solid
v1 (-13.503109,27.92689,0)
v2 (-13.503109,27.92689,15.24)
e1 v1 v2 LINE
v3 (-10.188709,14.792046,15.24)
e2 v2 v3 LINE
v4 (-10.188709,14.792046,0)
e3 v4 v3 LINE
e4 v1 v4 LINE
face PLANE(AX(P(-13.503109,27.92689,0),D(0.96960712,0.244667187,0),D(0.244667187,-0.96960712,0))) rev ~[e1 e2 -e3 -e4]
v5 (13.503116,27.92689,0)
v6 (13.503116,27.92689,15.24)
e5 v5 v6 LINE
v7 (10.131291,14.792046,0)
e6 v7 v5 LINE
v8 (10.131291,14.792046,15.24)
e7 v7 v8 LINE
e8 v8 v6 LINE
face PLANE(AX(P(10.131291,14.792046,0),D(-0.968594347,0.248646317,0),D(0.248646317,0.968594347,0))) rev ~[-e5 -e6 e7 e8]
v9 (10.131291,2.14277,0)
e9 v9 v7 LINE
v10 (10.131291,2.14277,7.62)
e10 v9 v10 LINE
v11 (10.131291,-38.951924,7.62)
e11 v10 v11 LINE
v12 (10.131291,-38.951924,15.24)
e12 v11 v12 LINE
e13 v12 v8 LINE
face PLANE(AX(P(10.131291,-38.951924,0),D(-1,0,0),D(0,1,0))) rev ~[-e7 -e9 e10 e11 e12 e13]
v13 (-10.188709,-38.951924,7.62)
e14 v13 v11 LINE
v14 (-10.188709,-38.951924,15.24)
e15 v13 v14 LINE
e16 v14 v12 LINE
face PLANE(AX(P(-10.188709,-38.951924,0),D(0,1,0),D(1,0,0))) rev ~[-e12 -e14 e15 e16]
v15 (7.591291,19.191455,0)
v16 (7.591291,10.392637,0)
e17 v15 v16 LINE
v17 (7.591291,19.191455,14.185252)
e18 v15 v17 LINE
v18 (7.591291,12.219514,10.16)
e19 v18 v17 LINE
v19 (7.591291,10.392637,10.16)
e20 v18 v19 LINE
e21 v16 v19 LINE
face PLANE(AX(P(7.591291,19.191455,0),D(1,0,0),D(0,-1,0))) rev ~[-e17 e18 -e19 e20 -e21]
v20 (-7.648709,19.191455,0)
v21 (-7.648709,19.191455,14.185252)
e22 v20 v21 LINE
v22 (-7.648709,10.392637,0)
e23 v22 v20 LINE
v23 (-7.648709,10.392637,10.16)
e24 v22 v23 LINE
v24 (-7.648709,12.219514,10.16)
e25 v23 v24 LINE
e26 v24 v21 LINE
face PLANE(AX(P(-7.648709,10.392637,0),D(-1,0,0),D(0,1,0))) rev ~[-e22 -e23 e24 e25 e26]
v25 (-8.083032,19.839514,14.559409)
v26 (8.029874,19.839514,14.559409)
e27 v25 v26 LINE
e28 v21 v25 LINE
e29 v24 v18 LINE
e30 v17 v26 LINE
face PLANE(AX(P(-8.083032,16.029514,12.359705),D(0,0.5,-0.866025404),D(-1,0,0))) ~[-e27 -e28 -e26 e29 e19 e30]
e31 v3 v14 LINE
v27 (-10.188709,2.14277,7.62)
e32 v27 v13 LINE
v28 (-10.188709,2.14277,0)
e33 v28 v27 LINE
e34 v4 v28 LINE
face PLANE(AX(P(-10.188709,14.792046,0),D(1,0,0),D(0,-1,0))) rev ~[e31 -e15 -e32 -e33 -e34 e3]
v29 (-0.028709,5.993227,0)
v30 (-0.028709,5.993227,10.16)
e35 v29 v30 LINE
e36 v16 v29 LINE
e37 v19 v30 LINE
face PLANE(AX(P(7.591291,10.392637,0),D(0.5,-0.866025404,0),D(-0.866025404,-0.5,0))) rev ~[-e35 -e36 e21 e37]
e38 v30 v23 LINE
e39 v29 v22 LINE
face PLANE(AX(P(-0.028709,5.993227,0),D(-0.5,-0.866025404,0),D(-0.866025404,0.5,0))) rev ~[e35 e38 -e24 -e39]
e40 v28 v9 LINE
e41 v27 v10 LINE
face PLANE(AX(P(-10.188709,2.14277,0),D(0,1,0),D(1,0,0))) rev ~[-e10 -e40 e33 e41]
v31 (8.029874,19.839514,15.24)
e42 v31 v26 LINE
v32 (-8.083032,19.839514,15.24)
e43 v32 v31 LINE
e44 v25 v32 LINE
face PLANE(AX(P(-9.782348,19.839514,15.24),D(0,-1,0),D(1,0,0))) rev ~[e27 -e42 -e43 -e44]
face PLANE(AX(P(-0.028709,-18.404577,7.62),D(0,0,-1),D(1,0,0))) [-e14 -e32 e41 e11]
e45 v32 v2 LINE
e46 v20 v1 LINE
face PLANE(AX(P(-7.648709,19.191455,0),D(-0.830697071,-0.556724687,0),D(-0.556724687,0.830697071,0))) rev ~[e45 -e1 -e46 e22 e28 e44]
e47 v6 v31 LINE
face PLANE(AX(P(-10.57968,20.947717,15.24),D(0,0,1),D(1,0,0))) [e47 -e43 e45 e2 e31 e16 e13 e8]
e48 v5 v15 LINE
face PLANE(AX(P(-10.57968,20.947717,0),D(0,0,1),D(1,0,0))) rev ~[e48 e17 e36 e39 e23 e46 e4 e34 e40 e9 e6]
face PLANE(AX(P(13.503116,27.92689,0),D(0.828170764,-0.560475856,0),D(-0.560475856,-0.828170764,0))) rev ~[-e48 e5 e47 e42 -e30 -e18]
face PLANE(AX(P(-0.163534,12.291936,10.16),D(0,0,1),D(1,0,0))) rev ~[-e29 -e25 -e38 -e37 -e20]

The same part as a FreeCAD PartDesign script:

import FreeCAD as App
import Part
import Sketcher

V = App.Vector
Q = App.Units.Quantity


def edges_at(feature, points):
    """Names of the edges that pass closest to the given points."""
    edges = feature.Shape.Edges
    near = lambda p: min(range(len(edges)), key=lambda i: edges[i].distToShape(Part.Vertex(*p))[0])
    return sorted({f"Edge{near(p) + 1}" for p in points})


def add_polygon(sketch, points):
    """Adds a closed chain of lines whose ends are joined by coincident constraints."""
    first, n = sketch.GeometryCount, len(points)
    for a, b in zip(points, points[1:] + points[:1]):
        sketch.addGeometry(Part.LineSegment(App.Vector(*a, 0), App.Vector(*b, 0)), False)
    for i in range(n):
        sketch.addConstraint(Sketcher.Constraint("Coincident", first + i, 2, first + (i + 1) % n, 1))

doc = App.newDocument("Part")
body = doc.addObject("PartDesign::Body", "Body")

# Sketch on XY plane
sketch1 = doc.addObject("Sketcher::SketchObject", "Sketch")
body.addObject(sketch1)
sketch1.AttachmentSupport = (doc.XY_Plane, [""])
sketch1.MapMode = "FlatFace"
add_polygon(sketch1, [(-14, 28), (-10, 15), (-10, -39), (10, -39), (10, 15), (14, 28), (8, 19), (8, 10), (0, 6), (-8, 10), (-8, 19)])  # lines 0-10
sketch1.addConstraint([
    Sketcher.Constraint("Vertical", 1),
    Sketcher.Constraint("Horizontal", 2),
    Sketcher.Constraint("Vertical", 3),
    Sketcher.Constraint("Vertical", 6),
    Sketcher.Constraint("Vertical", 9),
    Sketcher.Constraint("Symmetric", 4, 2, 10, 2, -2),
    Sketcher.Constraint("Horizontal", 0, 2, 3, 2),
    Sketcher.Constraint("Horizontal", 6, 2, 8, 2),
    Sketcher.Constraint("Horizontal", 5, 2, 9, 2),
    Sketcher.Constraint("Equal", 7, 8),
    Sketcher.Constraint("DistanceX", 2, 1, 2, 2, Q("0.8 in")),
    Sketcher.Constraint("Angle", 7, Q("-150 deg")),
    Sketcher.Constraint("DistanceX", 5, 2, 3, 2, Q("0.1 in")),
    Sketcher.Constraint("DistanceX", 7, 2, 6, 2, Q("0.3 in")),
    Sketcher.Constraint("DistanceY", 1, 2, 1, 1, 53.743969),
    Sketcher.Constraint("DistanceY", 6, 2, 6, 1, 8.798818),
    Sketcher.Constraint("DistanceX", 10, 2, 9, 2, 5.8544),
    Sketcher.Constraint("Distance", 4, 13.560728),
    Sketcher.Constraint("Distance", 10, 10.51579),
    Sketcher.Constraint("DistanceX", 0, 2, -1, 1, 10.188709),
    Sketcher.Constraint("DistanceY", -1, 1, 4, 2, 27.92689),
])
pad1 = doc.addObject("PartDesign::Pad", "Pad")
body.addObject(pad1)
pad1.Profile = sketch1
pad1.Length = Q("0.6 in")

# Sketch on XY plane
sketch2 = doc.addObject("Sketcher::SketchObject", "Sketch001")
body.addObject(sketch2)
sketch2.AttachmentSupport = (doc.XY_Plane, [""])
sketch2.MapMode = "FlatFace"
sketch2.AttachmentOffset = App.Placement(V(0, 0, 0.6 * 25.4), App.Rotation())
add_polygon(sketch2, [(-10, 20), (-10, 5), (9, 5), (9, 20)])  # lines 0-3
sketch2.addConstraint([
    Sketcher.Constraint("Vertical", 0),
    Sketcher.Constraint("Horizontal", 1),
    Sketcher.Constraint("Vertical", 2),
    Sketcher.Constraint("Horizontal", 3),
    Sketcher.Constraint("DistanceX", 1, 1, 1, 2, 19.237627),
    Sketcher.Constraint("DistanceY", 0, 2, 0, 1, 15.095157),
    Sketcher.Constraint("DistanceX", -1, 1, 1, 2, 9.455279),
    Sketcher.Constraint("DistanceY", -1, 1, 0, 2, 4.744357),
])
pad2 = doc.addObject("PartDesign::Pad", "Pad001")
body.addObject(pad2)
pad2.Profile = sketch2
pad2.Length = Q("0.2 in")
pad2.Reversed = True
doc.recompute()

chamfer = doc.addObject("PartDesign::Chamfer", "Chamfer")
body.addObject(chamfer)
chamfer.Base = (pad2, edges_at(pad2, [(-0.027, 19.84, 10.16)]))
chamfer.ChamferType = "Two distances"
chamfer.Size = Q("0.3 in")
chamfer.Size2 = 4.399409
chamfer.FlipDirection = True

# Sketch on XY plane
sketch3 = doc.addObject("Sketcher::SketchObject", "Sketch002")
body.addObject(sketch3)
sketch3.AttachmentSupport = (doc.XY_Plane, [""])
sketch3.MapMode = "FlatFace"
add_polygon(sketch3, [(-10, -39), (-10, 2), (10, 2), (10, -39)])  # lines 0-3
sketch3.addConstraint([
    Sketcher.Constraint("Vertical", 0),
    Sketcher.Constraint("Horizontal", 1),
    Sketcher.Constraint("Vertical", 2),
    Sketcher.Constraint("Horizontal", 3),
    Sketcher.Constraint("DistanceX", 1, 1, 1, 2, Q("0.8 in")),
    Sketcher.Constraint("DistanceY", 0, 1, 0, 2, 41.094694),
    Sketcher.Constraint("DistanceX", 0, 2, -1, 1, 10.188709),
    Sketcher.Constraint("DistanceY", -1, 1, 0, 2, 2.14277),
])
pocket1 = doc.addObject("PartDesign::Pocket", "Pocket")
body.addObject(pocket1)
pocket1.Profile = sketch3
pocket1.Length = Q("0.3 in")
pocket1.Reversed = True

doc.recompute()
